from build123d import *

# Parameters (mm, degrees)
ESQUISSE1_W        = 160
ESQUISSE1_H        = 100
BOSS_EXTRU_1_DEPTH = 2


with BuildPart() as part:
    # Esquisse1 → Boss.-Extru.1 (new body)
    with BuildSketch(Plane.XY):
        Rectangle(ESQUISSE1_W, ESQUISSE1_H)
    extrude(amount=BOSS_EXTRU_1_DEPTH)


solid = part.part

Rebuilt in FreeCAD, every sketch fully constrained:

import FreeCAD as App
import Part
import Sketcher

V = App.Vector

doc = App.newDocument("Part")
body = doc.addObject("PartDesign::Body", "Body")

# Sketch on XY plane
sketch1 = body.newObject("Sketcher::SketchObject", "Sketch")
sketch1.AttachmentSupport = (doc.getObject("XY_Plane"), [""])
sketch1.MapMode = "FlatFace"
sketch1.addGeometry(Part.LineSegment(V(-80, 50, 0), V(-80, -50, 0)), False)
sketch1.addGeometry(Part.LineSegment(V(-80, -50, 0), V(80, -50, 0)), False)
sketch1.addGeometry(Part.LineSegment(V(80, -50, 0), V(80, 50, 0)), False)
sketch1.addGeometry(Part.LineSegment(V(80, 50, 0), V(-80, 50, 0)), False)
sketch1.addConstraint(Sketcher.Constraint("Coincident", 0, 2, 1, 1))
sketch1.addConstraint(Sketcher.Constraint("Coincident", 1, 2, 2, 1))
sketch1.addConstraint(Sketcher.Constraint("Coincident", 2, 2, 3, 1))
sketch1.addConstraint(Sketcher.Constraint("Coincident", 3, 2, 0, 1))
sketch1.addConstraint(Sketcher.Constraint("Vertical", 0))
sketch1.addConstraint(Sketcher.Constraint("Horizontal", 1))
sketch1.addConstraint(Sketcher.Constraint("Vertical", 2))
sketch1.addConstraint(Sketcher.Constraint("Horizontal", 3))
sketch1.addConstraint(Sketcher.Constraint("Symmetric", 0, 2, 2, 2, -1, 1))
sketch1.addConstraint(Sketcher.Constraint("DistanceX", 1, 1, 1, 2, 160.0))
sketch1.addConstraint(Sketcher.Constraint("DistanceY", 0, 2, 0, 1, 100.0))
pad1 = body.newObject("PartDesign::Pad", "Pad")
pad1.Profile = sketch1
pad1.Length = 2

doc.recompute()
